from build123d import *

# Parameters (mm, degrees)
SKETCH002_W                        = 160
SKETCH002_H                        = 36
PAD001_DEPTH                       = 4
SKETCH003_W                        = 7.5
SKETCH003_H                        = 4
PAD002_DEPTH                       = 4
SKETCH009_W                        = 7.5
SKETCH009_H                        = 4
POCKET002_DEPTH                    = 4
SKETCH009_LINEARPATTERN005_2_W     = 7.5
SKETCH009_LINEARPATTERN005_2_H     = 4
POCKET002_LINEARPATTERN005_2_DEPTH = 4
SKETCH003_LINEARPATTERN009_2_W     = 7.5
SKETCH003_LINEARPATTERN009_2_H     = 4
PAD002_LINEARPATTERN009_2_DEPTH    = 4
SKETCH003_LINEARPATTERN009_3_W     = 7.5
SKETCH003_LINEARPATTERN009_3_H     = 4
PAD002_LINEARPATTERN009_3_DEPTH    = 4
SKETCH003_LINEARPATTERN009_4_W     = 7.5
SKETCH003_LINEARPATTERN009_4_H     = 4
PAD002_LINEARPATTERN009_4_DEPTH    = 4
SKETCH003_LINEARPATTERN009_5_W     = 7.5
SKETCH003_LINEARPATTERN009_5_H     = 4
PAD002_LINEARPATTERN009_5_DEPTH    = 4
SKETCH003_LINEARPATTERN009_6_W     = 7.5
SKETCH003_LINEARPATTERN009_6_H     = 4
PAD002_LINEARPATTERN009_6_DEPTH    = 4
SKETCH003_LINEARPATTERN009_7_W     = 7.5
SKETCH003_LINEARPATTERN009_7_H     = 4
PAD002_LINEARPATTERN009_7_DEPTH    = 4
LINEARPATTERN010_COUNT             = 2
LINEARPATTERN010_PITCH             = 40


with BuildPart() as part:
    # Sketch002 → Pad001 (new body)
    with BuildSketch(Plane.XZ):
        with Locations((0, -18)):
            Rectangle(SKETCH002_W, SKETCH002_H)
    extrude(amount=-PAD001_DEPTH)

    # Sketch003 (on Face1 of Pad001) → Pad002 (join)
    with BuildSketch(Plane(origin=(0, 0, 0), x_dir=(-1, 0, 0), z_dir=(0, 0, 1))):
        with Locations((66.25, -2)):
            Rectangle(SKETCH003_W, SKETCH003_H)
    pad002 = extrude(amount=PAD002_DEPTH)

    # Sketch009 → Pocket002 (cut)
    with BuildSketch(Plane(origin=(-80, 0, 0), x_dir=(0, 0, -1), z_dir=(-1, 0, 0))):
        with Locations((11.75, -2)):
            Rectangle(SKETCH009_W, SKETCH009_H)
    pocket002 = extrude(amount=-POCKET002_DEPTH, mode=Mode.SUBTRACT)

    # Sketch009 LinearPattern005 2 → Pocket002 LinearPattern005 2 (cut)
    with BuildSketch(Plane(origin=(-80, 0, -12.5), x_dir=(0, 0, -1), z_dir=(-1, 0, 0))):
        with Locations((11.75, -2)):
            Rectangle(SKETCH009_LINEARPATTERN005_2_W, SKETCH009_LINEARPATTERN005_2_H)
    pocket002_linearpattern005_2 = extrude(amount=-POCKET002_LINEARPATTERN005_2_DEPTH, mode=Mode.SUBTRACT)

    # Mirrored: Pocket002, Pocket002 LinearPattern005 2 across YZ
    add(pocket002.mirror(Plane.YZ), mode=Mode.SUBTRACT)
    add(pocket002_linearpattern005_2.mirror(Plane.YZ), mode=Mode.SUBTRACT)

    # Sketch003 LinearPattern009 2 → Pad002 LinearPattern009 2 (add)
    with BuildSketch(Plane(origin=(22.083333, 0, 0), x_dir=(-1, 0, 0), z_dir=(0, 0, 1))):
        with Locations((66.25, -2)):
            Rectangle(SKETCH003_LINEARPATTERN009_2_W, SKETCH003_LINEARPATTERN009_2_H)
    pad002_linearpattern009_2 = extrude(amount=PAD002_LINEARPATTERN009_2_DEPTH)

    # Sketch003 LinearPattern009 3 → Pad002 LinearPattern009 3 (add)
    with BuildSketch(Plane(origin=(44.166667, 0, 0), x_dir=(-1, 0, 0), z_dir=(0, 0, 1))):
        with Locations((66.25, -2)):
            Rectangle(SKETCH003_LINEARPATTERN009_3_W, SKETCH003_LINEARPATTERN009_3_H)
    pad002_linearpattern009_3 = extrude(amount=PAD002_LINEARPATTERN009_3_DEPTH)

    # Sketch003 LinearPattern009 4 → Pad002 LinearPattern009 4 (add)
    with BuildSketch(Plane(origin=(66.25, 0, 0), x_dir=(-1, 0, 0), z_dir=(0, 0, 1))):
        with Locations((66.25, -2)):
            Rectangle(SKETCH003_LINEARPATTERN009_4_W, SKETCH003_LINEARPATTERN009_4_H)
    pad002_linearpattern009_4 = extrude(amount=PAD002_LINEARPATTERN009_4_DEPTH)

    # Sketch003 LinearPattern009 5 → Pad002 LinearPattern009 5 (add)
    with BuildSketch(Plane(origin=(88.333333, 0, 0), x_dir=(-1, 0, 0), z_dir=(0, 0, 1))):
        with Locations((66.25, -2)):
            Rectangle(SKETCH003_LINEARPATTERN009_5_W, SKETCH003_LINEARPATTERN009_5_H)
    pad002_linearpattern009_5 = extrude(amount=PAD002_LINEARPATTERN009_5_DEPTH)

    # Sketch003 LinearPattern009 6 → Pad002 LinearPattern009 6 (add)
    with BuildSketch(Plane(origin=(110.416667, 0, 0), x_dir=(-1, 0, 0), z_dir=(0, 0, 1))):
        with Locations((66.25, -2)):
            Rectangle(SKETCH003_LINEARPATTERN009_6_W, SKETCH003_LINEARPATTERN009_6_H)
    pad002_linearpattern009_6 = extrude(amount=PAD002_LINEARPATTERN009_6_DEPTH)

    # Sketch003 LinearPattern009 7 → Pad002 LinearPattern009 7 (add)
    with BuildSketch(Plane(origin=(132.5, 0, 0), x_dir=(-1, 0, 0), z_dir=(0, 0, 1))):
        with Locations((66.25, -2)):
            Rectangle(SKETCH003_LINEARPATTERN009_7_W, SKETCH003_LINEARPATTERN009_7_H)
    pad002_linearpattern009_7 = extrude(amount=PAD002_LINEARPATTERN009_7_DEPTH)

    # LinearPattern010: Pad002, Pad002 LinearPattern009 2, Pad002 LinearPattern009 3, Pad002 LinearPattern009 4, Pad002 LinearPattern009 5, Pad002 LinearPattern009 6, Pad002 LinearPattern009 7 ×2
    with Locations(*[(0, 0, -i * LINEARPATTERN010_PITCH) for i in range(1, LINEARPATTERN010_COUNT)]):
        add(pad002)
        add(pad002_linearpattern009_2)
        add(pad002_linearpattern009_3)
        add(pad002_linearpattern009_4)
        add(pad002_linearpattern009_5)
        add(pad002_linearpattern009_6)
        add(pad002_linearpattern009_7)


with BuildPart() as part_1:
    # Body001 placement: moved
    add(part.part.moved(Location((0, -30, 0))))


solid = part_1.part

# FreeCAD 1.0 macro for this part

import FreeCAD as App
import Part
import Sketcher

V = App.Vector
Q = App.Units.Quantity

doc = App.newDocument("Part")
body = doc.addObject("PartDesign::Body", "Body")

# Sketch on XZ plane
sketch1 = body.newObject("Sketcher::SketchObject", "Sketch")
sketch1.AttachmentSupport = (doc.getObject("XZ_Plane"), [""])
sketch1.MapMode = "FlatFace"
sketch1.addGeometry(Part.LineSegment(V(-80, 0, 0), V(-80, -36, 0)), False)
sketch1.addGeometry(Part.LineSegment(V(-80, -36, 0), V(80, -36, 0)), False)
sketch1.addGeometry(Part.LineSegment(V(80, -36, 0), V(80, 0, 0)), False)
sketch1.addGeometry(Part.LineSegment(V(80, 0, 0), V(-80, 0, 0)), False)
sketch1.addConstraint(Sketcher.Constraint("Coincident", 0, 2, 1, 1))
sketch1.addConstraint(Sketcher.Constraint("Coincident", 1, 2, 2, 1))
sketch1.addConstraint(Sketcher.Constraint("Coincident", 2, 2, 3, 1))
sketch1.addConstraint(Sketcher.Constraint("Coincident", 3, 2, 0, 1))
sketch1.addConstraint(Sketcher.Constraint("Vertical", 0))
sketch1.addConstraint(Sketcher.Constraint("Horizontal", 1))
sketch1.addConstraint(Sketcher.Constraint("Vertical", 2))
sketch1.addConstraint(Sketcher.Constraint("Horizontal", 3))
sketch1.addConstraint(Sketcher.Constraint("Symmetric", 2, 2, 3, 2, -1, 1))
sketch1.addConstraint(Sketcher.Constraint("DistanceX", 1, 1, 1, 2, Q("160 mm")))
sketch1.addConstraint(Sketcher.Constraint("DistanceY", 0, 2, 0, 1, Q("36 mm")))
pad1 = body.newObject("PartDesign::Pad", "Pad")
pad1.Profile = sketch1
pad1.Length = 4
pad1.Reversed = True

# Sketch on XY plane
sketch2 = body.newObject("Sketcher::SketchObject", "Sketch001")
sketch2.AttachmentSupport = (doc.getObject("XY_Plane"), [""])
sketch2.MapMode = "FlatFace"
sketch2.addGeometry(Part.LineSegment(V(-62.5, 0, 0), V(-62.5, 4, 0)), False)
sketch2.addGeometry(Part.LineSegment(V(-62.5, 4, 0), V(-70, 4, 0)), False)
sketch2.addGeometry(Part.LineSegment(V(-70, 4, 0), V(-70, 0, 0)), False)
sketch2.addGeometry(Part.LineSegment(V(-70, 0, 0), V(-62.5, 0, 0)), False)
sketch2.addConstraint(Sketcher.Constraint("Coincident", 0, 2, 1, 1))
sketch2.addConstraint(Sketcher.Constraint("Coincident", 1, 2, 2, 1))
sketch2.addConstraint(Sketcher.Constraint("Coincident", 2, 2, 3, 1))
sketch2.addConstraint(Sketcher.Constraint("Coincident", 3, 2, 0, 1))
sketch2.addConstraint(Sketcher.Constraint("Vertical", 0))
sketch2.addConstraint(Sketcher.Constraint("Horizontal", 1))
sketch2.addConstraint(Sketcher.Constraint("Vertical", 2))
sketch2.addConstraint(Sketcher.Constraint("Horizontal", 3))
sketch2.addConstraint(Sketcher.Constraint("PointOnObject", 2, 2, -1))
sketch2.addConstraint(Sketcher.Constraint("DistanceY", 0, 1, 0, 2, Q("4 mm")))
sketch2.addConstraint(Sketcher.Constraint("DistanceX", 1, 2, 1, 1, Q("7.5 mm")))
sketch2.addConstraint(Sketcher.Constraint("DistanceX", 1, 2, -1, 1, Q("70 mm")))
pad2 = body.newObject("PartDesign::Pad", "Pad001")
pad2.Profile = sketch2
pad2.Length = 4

# Sketch on YZ plane
sketch3 = body.newObject("Sketcher::SketchObject", "Sketch002")
sketch3.AttachmentSupport = (doc.getObject("YZ_Plane"), [""])
sketch3.MapMode = "FlatFace"
sketch3.AttachmentOffset = App.Placement(V(0, 0, -80), App.Rotation())
sketch3.addGeometry(Part.LineSegment(V(0, -8, 0), V(4, -8, 0)), False)
sketch3.addGeometry(Part.LineSegment(V(4, -8, 0), V(4, -15.5, 0)), False)
sketch3.addGeometry(Part.LineSegment(V(4, -15.5, 0), V(0, -15.5, 0)), False)
sketch3.addGeometry(Part.LineSegment(V(0, -15.5, 0), V(0, -8, 0)), False)
sketch3.addConstraint(Sketcher.Constraint("Coincident", 0, 2, 1, 1))
sketch3.addConstraint(Sketcher.Constraint("Coincident", 1, 2, 2, 1))
sketch3.addConstraint(Sketcher.Constraint("Coincident", 2, 2, 3, 1))
sketch3.addConstraint(Sketcher.Constraint("Coincident", 3, 2, 0, 1))
sketch3.addConstraint(Sketcher.Constraint("Horizontal", 0))
sketch3.addConstraint(Sketcher.Constraint("Vertical", 1))
sketch3.addConstraint(Sketcher.Constraint("Horizontal", 2))
sketch3.addConstraint(Sketcher.Constraint("Vertical", 3))
sketch3.addConstraint(Sketcher.Constraint("PointOnObject", 2, 2, -2))
sketch3.addConstraint(Sketcher.Constraint("DistanceX", 0, 1, 0, 2, Q("4 mm")))
sketch3.addConstraint(Sketcher.Constraint("DistanceY", 1, 2, 1, 1, Q("7.5 mm")))
sketch3.addConstraint(Sketcher.Constraint("DistanceY", 0, 2, -1, 1, Q("8 mm")))
pocket1 = body.newObject("PartDesign::Pocket", "Pocket")
pocket1.Profile = sketch3
pocket1.Length = 4
pocket1.Reversed = True

# Sketch on YZ plane
sketch4 = body.newObject("Sketcher::SketchObject", "Sketch003")
sketch4.AttachmentSupport = (doc.getObject("YZ_Plane"), [""])
sketch4.MapMode = "FlatFace"
sketch4.AttachmentOffset = App.Placement(V(0, 0, -80), App.Rotation())
sketch4.addGeometry(Part.LineSegment(V(0, -20.5, 0), V(4, -20.5, 0)), False)
sketch4.addGeometry(Part.LineSegment(V(4, -20.5, 0), V(4, -28, 0)), False)
sketch4.addGeometry(Part.LineSegment(V(4, -28, 0), V(0, -28, 0)), False)
sketch4.addGeometry(Part.LineSegment(V(0, -28, 0), V(0, -20.5, 0)), False)
sketch4.addConstraint(Sketcher.Constraint("Coincident", 0, 2, 1, 1))
sketch4.addConstraint(Sketcher.Constraint("Coincident", 1, 2, 2, 1))
sketch4.addConstraint(Sketcher.Constraint("Coincident", 2, 2, 3, 1))
sketch4.addConstraint(Sketcher.Constraint("Coincident", 3, 2, 0, 1))
sketch4.addConstraint(Sketcher.Constraint("Horizontal", 0))
sketch4.addConstraint(Sketcher.Constraint("Vertical", 1))
sketch4.addConstraint(Sketcher.Constraint("Horizontal", 2))
sketch4.addConstraint(Sketcher.Constraint("Vertical", 3))
sketch4.addConstraint(Sketcher.Constraint("PointOnObject", 2, 2, -2))
sketch4.addConstraint(Sketcher.Constraint("DistanceX", 0, 1, 0, 2, Q("4 mm")))
sketch4.addConstraint(Sketcher.Constraint("DistanceY", 1, 2, 1, 1, Q("7.5 mm")))
sketch4.addConstraint(Sketcher.Constraint("DistanceY", 1, 2, -1, 1, Q("28 mm")))
pocket2 = body.newObject("PartDesign::Pocket", "Pocket001")
pocket2.Profile = sketch4
pocket2.Length = 4
pocket2.Reversed = True
doc.recompute()

mirrored = body.newObject("PartDesign::Mirrored", "Mirrored")
mirrored.Originals = [pocket1, pocket2]
mirrored.MirrorPlane = (doc.getObject("YZ_Plane"), [""])
body.Tip = mirrored

# Sketch on XY plane
sketch5 = body.newObject("Sketcher::SketchObject", "Sketch004")
sketch5.AttachmentSupport = (doc.getObject("XY_Plane"), [""])
sketch5.MapMode = "FlatFace"
sketch5.addGeometry(Part.LineSegment(V(-40.4, 0, 0), V(-40.4, 4, 0)), False)
sketch5.addGeometry(Part.LineSegment(V(-40.4, 4, 0), V(-47.9, 4, 0)), False)
sketch5.addGeometry(Part.LineSegment(V(-47.9, 4, 0), V(-47.9, 0, 0)), False)
sketch5.addGeometry(Part.LineSegment(V(-47.9, 0, 0), V(-40.4, 0, 0)), False)
sketch5.addConstraint(Sketcher.Constraint("Coincident", 0, 2, 1, 1))
sketch5.addConstraint(Sketcher.Constraint("Coincident", 1, 2, 2, 1))
sketch5.addConstraint(Sketcher.Constraint("Coincident", 2, 2, 3, 1))
sketch5.addConstraint(Sketcher.Constraint("Coincident", 3, 2, 0, 1))
sketch5.addConstraint(Sketcher.Constraint("Vertical", 0))
sketch5.addConstraint(Sketcher.Constraint("Horizontal", 1))
sketch5.addConstraint(Sketcher.Constraint("Vertical", 2))
sketch5.addConstraint(Sketcher.Constraint("Horizontal", 3))
sketch5.addConstraint(Sketcher.Constraint("PointOnObject", 2, 2, -1))
sketch5.addConstraint(Sketcher.Constraint("DistanceY", 0, 1, 0, 2, Q("4 mm")))
sketch5.addConstraint(Sketcher.Constraint("DistanceX", 1, 2, 1, 1, Q("7.5 mm")))
sketch5.addConstraint(Sketcher.Constraint("DistanceX", 0, 2, -1, 1, Q("40.416667 mm")))
pad3 = body.newObject("PartDesign::Pad", "Pad002")
pad3.Profile = sketch5
pad3.Length = 4

# Sketch on XY plane
sketch6 = body.newObject("Sketcher::SketchObject", "Sketch005")
sketch6.AttachmentSupport = (doc.getObject("XY_Plane"), [""])
sketch6.MapMode = "FlatFace"
sketch6.addGeometry(Part.LineSegment(V(-18.3, 0, 0), V(-18.3, 4, 0)), False)
sketch6.addGeometry(Part.LineSegment(V(-18.3, 4, 0), V(-25.8, 4, 0)), False)
sketch6.addGeometry(Part.LineSegment(V(-25.8, 4, 0), V(-25.8, 0, 0)), False)
sketch6.addGeometry(Part.LineSegment(V(-25.8, 0, 0), V(-18.3, 0, 0)), False)
sketch6.addConstraint(Sketcher.Constraint("Coincident", 0, 2, 1, 1))
sketch6.addConstraint(Sketcher.Constraint("Coincident", 1, 2, 2, 1))
sketch6.addConstraint(Sketcher.Constraint("Coincident", 2, 2, 3, 1))
sketch6.addConstraint(Sketcher.Constraint("Coincident", 3, 2, 0, 1))
sketch6.addConstraint(Sketcher.Constraint("Vertical", 0))
sketch6.addConstraint(Sketcher.Constraint("Horizontal", 1))
sketch6.addConstraint(Sketcher.Constraint("Vertical", 2))
sketch6.addConstraint(Sketcher.Constraint("Horizontal", 3))
sketch6.addConstraint(Sketcher.Constraint("PointOnObject", 2, 2, -1))
sketch6.addConstraint(Sketcher.Constraint("DistanceY", 0, 1, 0, 2, Q("4 mm")))
sketch6.addConstraint(Sketcher.Constraint("DistanceX", 1, 2, 1, 1, Q("7.5 mm")))
sketch6.addConstraint(Sketcher.Constraint("DistanceX", 0, 2, -1, 1, Q("18.333333 mm")))
pad4 = body.newObject("PartDesign::Pad", "Pad003")
pad4.Profile = sketch6
pad4.Length = 4

# Sketch on XY plane
sketch7 = body.newObject("Sketcher::SketchObject", "Sketch006")
sketch7.AttachmentSupport = (doc.getObject("XY_Plane"), [""])
sketch7.MapMode = "FlatFace"
sketch7.addGeometry(Part.LineSegment(V(3.8, 0, 0), V(3.8, 4, 0)), False)
sketch7.addGeometry(Part.LineSegment(V(3.8, 4, 0), V(-3.8, 4, 0)), False)
sketch7.addGeometry(Part.LineSegment(V(-3.8, 4, 0), V(-3.8, 0, 0)), False)
sketch7.addGeometry(Part.LineSegment(V(-3.8, 0, 0), V(3.8, 0, 0)), False)
sketch7.addConstraint(Sketcher.Constraint("Coincident", 0, 2, 1, 1))
sketch7.addConstraint(Sketcher.Constraint("Coincident", 1, 2, 2, 1))
sketch7.addConstraint(Sketcher.Constraint("Coincident", 2, 2, 3, 1))
sketch7.addConstraint(Sketcher.Constraint("Coincident", 3, 2, 0, 1))
sketch7.addConstraint(Sketcher.Constraint("Vertical", 0))
sketch7.addConstraint(Sketcher.Constraint("Horizontal", 1))
sketch7.addConstraint(Sketcher.Constraint("Vertical", 2))
sketch7.addConstraint(Sketcher.Constraint("Horizontal", 3))
sketch7.addConstraint(Sketcher.Constraint("Symmetric", 2, 2, 3, 2, -1, 1))
sketch7.addConstraint(Sketcher.Constraint("DistanceY", 0, 1, 0, 2, Q("4 mm")))
sketch7.addConstraint(Sketcher.Constraint("DistanceX", 1, 2, 1, 1, Q("7.5 mm")))
pad5 = body.newObject("PartDesign::Pad", "Pad004")
pad5.Profile = sketch7
pad5.Length = 4

# Sketch on XY plane
sketch8 = body.newObject("Sketcher::SketchObject", "Sketch007")
sketch8.AttachmentSupport = (doc.getObject("XY_Plane"), [""])
sketch8.MapMode = "FlatFace"
sketch8.addGeometry(Part.LineSegment(V(25.8, 0, 0), V(25.8, 4, 0)), False)
sketch8.addGeometry(Part.LineSegment(V(25.8, 4, 0), V(18.3, 4, 0)), False)
sketch8.addGeometry(Part.LineSegment(V(18.3, 4, 0), V(18.3, 0, 0)), False)
sketch8.addGeometry(Part.LineSegment(V(18.3, 0, 0), V(25.8, 0, 0)), False)
sketch8.addConstraint(Sketcher.Constraint("Coincident", 0, 2, 1, 1))
sketch8.addConstraint(Sketcher.Constraint("Coincident", 1, 2, 2, 1))
sketch8.addConstraint(Sketcher.Constraint("Coincident", 2, 2, 3, 1))
sketch8.addConstraint(Sketcher.Constraint("Coincident", 3, 2, 0, 1))
sketch8.addConstraint(Sketcher.Constraint("Vertical", 0))
sketch8.addConstraint(Sketcher.Constraint("Horizontal", 1))
sketch8.addConstraint(Sketcher.Constraint("Vertical", 2))
sketch8.addConstraint(Sketcher.Constraint("Horizontal", 3))
sketch8.addConstraint(Sketcher.Constraint("PointOnObject", 2, 2, -1))
sketch8.addConstraint(Sketcher.Constraint("DistanceY", 0, 1, 0, 2, Q("4 mm")))
sketch8.addConstraint(Sketcher.Constraint("DistanceX", 1, 2, 1, 1, Q("7.5 mm")))
sketch8.addConstraint(Sketcher.Constraint("DistanceX", -1, 1, 0, 2, Q("25.833333 mm")))
pad6 = body.newObject("PartDesign::Pad", "Pad005")
pad6.Profile = sketch8
pad6.Length = 4

# Sketch on XY plane
sketch9 = body.newObject("Sketcher::SketchObject", "Sketch008")
sketch9.AttachmentSupport = (doc.getObject("XY_Plane"), [""])
sketch9.MapMode = "FlatFace"
sketch9.addGeometry(Part.LineSegment(V(47.9, 0, 0), V(47.9, 4, 0)), False)
sketch9.addGeometry(Part.LineSegment(V(47.9, 4, 0), V(40.4, 4, 0)), False)
sketch9.addGeometry(Part.LineSegment(V(40.4, 4, 0), V(40.4, 0, 0)), False)
sketch9.addGeometry(Part.LineSegment(V(40.4, 0, 0), V(47.9, 0, 0)), False)
sketch9.addConstraint(Sketcher.Constraint("Coincident", 0, 2, 1, 1))
sketch9.addConstraint(Sketcher.Constraint("Coincident", 1, 2, 2, 1))
sketch9.addConstraint(Sketcher.Constraint("Coincident", 2, 2, 3, 1))
sketch9.addConstraint(Sketcher.Constraint("Coincident", 3, 2, 0, 1))
sketch9.addConstraint(Sketcher.Constraint("Vertical", 0))
sketch9.addConstraint(Sketcher.Constraint("Horizontal", 1))
sketch9.addConstraint(Sketcher.Constraint("Vertical", 2))
sketch9.addConstraint(Sketcher.Constraint("Horizontal", 3))
sketch9.addConstraint(Sketcher.Constraint("PointOnObject", 2, 2, -1))
sketch9.addConstraint(Sketcher.Constraint("DistanceY", 0, 1, 0, 2, Q("4 mm")))
sketch9.addConstraint(Sketcher.Constraint("DistanceX", 1, 2, 1, 1, Q("7.5 mm")))
sketch9.addConstraint(Sketcher.Constraint("DistanceX", -1, 1, 0, 2, Q("47.916667 mm")))
pad7 = body.newObject("PartDesign::Pad", "Pad006")
pad7.Profile = sketch9
pad7.Length = 4

# Sketch on XY plane
sketch10 = body.newObject("Sketcher::SketchObject", "Sketch009")
sketch10.AttachmentSupport = (doc.getObject("XY_Plane"), [""])
sketch10.MapMode = "FlatFace"
sketch10.addGeometry(Part.LineSegment(V(70, 0, 0), V(70, 4, 0)), False)
sketch10.addGeometry(Part.LineSegment(V(70, 4, 0), V(62.5, 4, 0)), False)
sketch10.addGeometry(Part.LineSegment(V(62.5, 4, 0), V(62.5, 0, 0)), False)
sketch10.addGeometry(Part.LineSegment(V(62.5, 0, 0), V(70, 0, 0)), False)
sketch10.addConstraint(Sketcher.Constraint("Coincident", 0, 2, 1, 1))
sketch10.addConstraint(Sketcher.Constraint("Coincident", 1, 2, 2, 1))
sketch10.addConstraint(Sketcher.Constraint("Coincident", 2, 2, 3, 1))
sketch10.addConstraint(Sketcher.Constraint("Coincident", 3, 2, 0, 1))
sketch10.addConstraint(Sketcher.Constraint("Vertical", 0))
sketch10.addConstraint(Sketcher.Constraint("Horizontal", 1))
sketch10.addConstraint(Sketcher.Constraint("Vertical", 2))
sketch10.addConstraint(Sketcher.Constraint("Horizontal", 3))
sketch10.addConstraint(Sketcher.Constraint("PointOnObject", 2, 2, -1))
sketch10.addConstraint(Sketcher.Constraint("DistanceY", 0, 1, 0, 2, Q("4 mm")))
sketch10.addConstraint(Sketcher.Constraint("DistanceX", 1, 2, 1, 1, Q("7.5 mm")))
sketch10.addConstraint(Sketcher.Constraint("DistanceX", -1, 1, 0, 2, Q("70 mm")))
pad8 = body.newObject("PartDesign::Pad", "Pad007")
pad8.Profile = sketch10
pad8.Length = 4
doc.recompute()

linearpattern = body.newObject("PartDesign::LinearPattern", "LinearPattern")
linearpattern.Originals = [pad2, pad3, pad4, pad5, pad6, pad7, pad8]
linearpattern.Direction = (doc.getObject("Z_Axis"), [""])
linearpattern.Mode = "offset"
linearpattern.Offset = 40
linearpattern.Occurrences = 2
linearpattern.Reversed = True
body.Tip = linearpattern
body2 = doc.addObject("PartDesign::Body", "Body001")
doc.recompute()

body.Placement = App.Placement(V(0, -30, 0), App.Rotation(V(0, 0, 1), 0))
boolean = body2.newObject("PartDesign::Boolean", "Boolean")
boolean.Type = "Fuse"
boolean.addObjects([body])

doc.recompute()
